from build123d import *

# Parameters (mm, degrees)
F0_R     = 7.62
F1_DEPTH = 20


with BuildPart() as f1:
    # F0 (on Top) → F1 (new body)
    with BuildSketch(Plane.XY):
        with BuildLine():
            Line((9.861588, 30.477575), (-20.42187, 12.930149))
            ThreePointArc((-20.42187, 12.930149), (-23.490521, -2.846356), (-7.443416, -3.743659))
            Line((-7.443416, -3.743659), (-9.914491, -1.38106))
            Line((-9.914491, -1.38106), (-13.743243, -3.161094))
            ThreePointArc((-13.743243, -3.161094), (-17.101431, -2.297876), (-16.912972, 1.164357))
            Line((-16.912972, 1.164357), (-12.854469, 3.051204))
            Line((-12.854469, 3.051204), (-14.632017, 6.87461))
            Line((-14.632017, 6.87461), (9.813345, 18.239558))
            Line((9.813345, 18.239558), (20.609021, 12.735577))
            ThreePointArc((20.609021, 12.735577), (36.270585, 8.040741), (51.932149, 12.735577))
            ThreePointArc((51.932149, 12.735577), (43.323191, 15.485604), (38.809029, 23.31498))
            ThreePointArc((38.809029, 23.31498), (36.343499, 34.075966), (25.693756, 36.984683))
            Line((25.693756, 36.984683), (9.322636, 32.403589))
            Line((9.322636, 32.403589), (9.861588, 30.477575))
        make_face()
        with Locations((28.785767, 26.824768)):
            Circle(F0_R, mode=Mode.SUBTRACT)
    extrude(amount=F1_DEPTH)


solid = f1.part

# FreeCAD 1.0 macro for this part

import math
import FreeCAD as App
import Part
import Sketcher
from FreeCAD import Vector
Q = App.Units.Quantity

doc = App.newDocument("Part")
body = doc.addObject("PartDesign::Body", "Body")

sketch1 = body.newObject("Sketcher::SketchObject", "Sketch")
sketch1.AttachmentSupport = (doc.getObject("XY_Plane"), [""])
sketch1.MapMode = "FlatFace"
sketch1.addGeometry([
    Part.LineSegment(Vector(9.9, 30.5, 0), Vector(-20.4, 12.9, 0)),
    Part.ArcOfCircle(Part.Circle(Vector(-15.1, 3.7, 0), Vector(0, 0, 1), 10.7), math.radians(120), math.radians(316)),
    Part.LineSegment(Vector(-7.4, -3.7, 0), Vector(-9.9, -1.4, 0)),
    Part.LineSegment(Vector(-9.9, -1.4, 0), Vector(-13.7, -3.2, 0)),
    Part.ArcOfCircle(Part.Circle(Vector(-14.9, -0.7, 0), Vector(0, 0, 1), 2.7), math.radians(138), math.radians(295)),
    Part.LineSegment(Vector(-16.9, 1.2, 0), Vector(-12.9, 3.1, 0)),
    Part.LineSegment(Vector(-12.9, 3.1, 0), Vector(-14.6, 6.9, 0)),
    Part.LineSegment(Vector(-14.6, 6.9, 0), Vector(9.8, 18.2, 0)),
    Part.LineSegment(Vector(9.8, 18.2, 0), Vector(20.6, 12.7, 0)),
    Part.ArcOfCircle(Part.Circle(Vector(36.3, 36.5, 0), Vector(0, 0, 1), 28.5), math.radians(-123), math.radians(-57)),
    Part.ArcOfCircle(Part.Circle(Vector(51.2, 25.2, 0), Vector(0, 0, 1), 12.5), math.radians(-171), math.radians(-87)),
    Part.ArcOfCircle(Part.Circle(Vector(28.6, 26.6, 0), Vector(0, 0, 1), 10.7), math.radians(-18), math.radians(106)),
    Part.LineSegment(Vector(25.7, 37, 0), Vector(9.3, 32.4, 0)),
    Part.LineSegment(Vector(9.3, 32.4, 0), Vector(9.9, 30.5, 0)),
    Part.Circle(Vector(28.8, 26.8, 0), Vector(0, 0, 1), 7.6),
], False)
sketch1.addConstraint([
    Sketcher.Constraint("Tangent", 0, 2, 1, 1),
    Sketcher.Constraint("Coincident", 1, 2, 2, 1),
    Sketcher.Constraint("Coincident", 2, 2, 3, 1),
    Sketcher.Constraint("Tangent", 3, 2, 4, 2),
    Sketcher.Constraint("Coincident", 4, 1, 5, 1),
    Sketcher.Constraint("Coincident", 5, 2, 6, 1),
    Sketcher.Constraint("Coincident", 6, 2, 7, 1),
    Sketcher.Constraint("Coincident", 7, 2, 8, 1),
    Sketcher.Constraint("Coincident", 8, 2, 9, 1),
    Sketcher.Constraint("Coincident", 9, 2, 10, 2),
    Sketcher.Constraint("Coincident", 10, 1, 11, 1),
    Sketcher.Constraint("Tangent", 11, 2, 12, 1),
    Sketcher.Constraint("Coincident", 12, 2, 13, 1),
    Sketcher.Constraint("Coincident", 13, 2, 0, 1),
    Sketcher.Constraint("Parallel", 3, 5),
    Sketcher.Constraint("Perpendicular", 5, 6),
    Sketcher.Constraint("Perpendicular", 6, 7),
    Sketcher.Constraint("Perpendicular", 12, 13),
    Sketcher.Constraint("Horizontal", 8, 2, 9, 2),
    Sketcher.Constraint("Diameter", 14, Q("15.24 mm")),
    Sketcher.Constraint("Distance", 0, Q("35 mm")),
    Sketcher.Constraint("Distance", 12, Q("17 mm")),
    Sketcher.Constraint("Distance", 13, Q("2 mm")),
    Sketcher.Constraint("Radius", 1, Q("10.663581 mm")),
    Sketcher.Constraint("Radius", 4, Q("2.734269 mm")),
    Sketcher.Constraint("Radius", 9, Q("28.470225 mm")),
    Sketcher.Constraint("Radius", 10, Q("12.518764 mm")),
    Sketcher.Constraint("Radius", 11, Q("10.745756 mm")),
    Sketcher.Constraint("DistanceX", 9, 3, 10, 3, Q("14.9096 mm")),
    Sketcher.Constraint("DistanceY", 1, 2, 2, 2, Q("2.362599 mm")),
    Sketcher.Constraint("Distance", 5, Q("4.475672 mm")),
    Sketcher.Constraint("Distance", 6, Q("4.21641 mm")),
    Sketcher.Constraint("DistanceX", 1, 3, -1, 1, Q("15.07563 mm")),
    Sketcher.Constraint("DistanceX", 4, 3, -1, 1, Q("14.895951 mm")),
    Sketcher.Constraint("DistanceY", 4, 3, -1, 1, Q("0.681681 mm")),
    Sketcher.Constraint("DistanceX", -1, 1, 11, 3, Q("28.589481 mm")),
    Sketcher.Constraint("DistanceX", 0, 2, -1, 1, Q("20.42187 mm")),
    Sketcher.Constraint("DistanceY", -1, 1, 0, 2, Q("12.930149 mm")),
    Sketcher.Constraint("DistanceY", 1, 2, -1, 1, Q("3.743659 mm")),
    Sketcher.Constraint("DistanceX", 2, 2, -1, 1, Q("9.914491 mm")),
    Sketcher.Constraint("DistanceX", 5, 2, -1, 1, Q("12.854469 mm")),
    Sketcher.Constraint("DistanceX", -1, 1, 8, 2, Q("20.609021 mm")),
    Sketcher.Constraint("DistanceX", -1, 1, 9, 2, Q("51.932149 mm")),
    Sketcher.Constraint("DistanceX", -1, 1, 10, 1, Q("38.809029 mm")),
    Sketcher.Constraint("DistanceY", 10, 3, 14, 3, Q("1.593031 mm")),
    Sketcher.Constraint("DistanceX", 4, 3, 14, 3, Q("43.681718 mm")),
    Sketcher.Constraint("DistanceY", 7, 2, 14, 3, Q("8.58521 mm")),
])
pad1 = body.newObject("PartDesign::Pad", "Pad")
pad1.Profile = sketch1
pad1.Length = 20

doc.recompute()
